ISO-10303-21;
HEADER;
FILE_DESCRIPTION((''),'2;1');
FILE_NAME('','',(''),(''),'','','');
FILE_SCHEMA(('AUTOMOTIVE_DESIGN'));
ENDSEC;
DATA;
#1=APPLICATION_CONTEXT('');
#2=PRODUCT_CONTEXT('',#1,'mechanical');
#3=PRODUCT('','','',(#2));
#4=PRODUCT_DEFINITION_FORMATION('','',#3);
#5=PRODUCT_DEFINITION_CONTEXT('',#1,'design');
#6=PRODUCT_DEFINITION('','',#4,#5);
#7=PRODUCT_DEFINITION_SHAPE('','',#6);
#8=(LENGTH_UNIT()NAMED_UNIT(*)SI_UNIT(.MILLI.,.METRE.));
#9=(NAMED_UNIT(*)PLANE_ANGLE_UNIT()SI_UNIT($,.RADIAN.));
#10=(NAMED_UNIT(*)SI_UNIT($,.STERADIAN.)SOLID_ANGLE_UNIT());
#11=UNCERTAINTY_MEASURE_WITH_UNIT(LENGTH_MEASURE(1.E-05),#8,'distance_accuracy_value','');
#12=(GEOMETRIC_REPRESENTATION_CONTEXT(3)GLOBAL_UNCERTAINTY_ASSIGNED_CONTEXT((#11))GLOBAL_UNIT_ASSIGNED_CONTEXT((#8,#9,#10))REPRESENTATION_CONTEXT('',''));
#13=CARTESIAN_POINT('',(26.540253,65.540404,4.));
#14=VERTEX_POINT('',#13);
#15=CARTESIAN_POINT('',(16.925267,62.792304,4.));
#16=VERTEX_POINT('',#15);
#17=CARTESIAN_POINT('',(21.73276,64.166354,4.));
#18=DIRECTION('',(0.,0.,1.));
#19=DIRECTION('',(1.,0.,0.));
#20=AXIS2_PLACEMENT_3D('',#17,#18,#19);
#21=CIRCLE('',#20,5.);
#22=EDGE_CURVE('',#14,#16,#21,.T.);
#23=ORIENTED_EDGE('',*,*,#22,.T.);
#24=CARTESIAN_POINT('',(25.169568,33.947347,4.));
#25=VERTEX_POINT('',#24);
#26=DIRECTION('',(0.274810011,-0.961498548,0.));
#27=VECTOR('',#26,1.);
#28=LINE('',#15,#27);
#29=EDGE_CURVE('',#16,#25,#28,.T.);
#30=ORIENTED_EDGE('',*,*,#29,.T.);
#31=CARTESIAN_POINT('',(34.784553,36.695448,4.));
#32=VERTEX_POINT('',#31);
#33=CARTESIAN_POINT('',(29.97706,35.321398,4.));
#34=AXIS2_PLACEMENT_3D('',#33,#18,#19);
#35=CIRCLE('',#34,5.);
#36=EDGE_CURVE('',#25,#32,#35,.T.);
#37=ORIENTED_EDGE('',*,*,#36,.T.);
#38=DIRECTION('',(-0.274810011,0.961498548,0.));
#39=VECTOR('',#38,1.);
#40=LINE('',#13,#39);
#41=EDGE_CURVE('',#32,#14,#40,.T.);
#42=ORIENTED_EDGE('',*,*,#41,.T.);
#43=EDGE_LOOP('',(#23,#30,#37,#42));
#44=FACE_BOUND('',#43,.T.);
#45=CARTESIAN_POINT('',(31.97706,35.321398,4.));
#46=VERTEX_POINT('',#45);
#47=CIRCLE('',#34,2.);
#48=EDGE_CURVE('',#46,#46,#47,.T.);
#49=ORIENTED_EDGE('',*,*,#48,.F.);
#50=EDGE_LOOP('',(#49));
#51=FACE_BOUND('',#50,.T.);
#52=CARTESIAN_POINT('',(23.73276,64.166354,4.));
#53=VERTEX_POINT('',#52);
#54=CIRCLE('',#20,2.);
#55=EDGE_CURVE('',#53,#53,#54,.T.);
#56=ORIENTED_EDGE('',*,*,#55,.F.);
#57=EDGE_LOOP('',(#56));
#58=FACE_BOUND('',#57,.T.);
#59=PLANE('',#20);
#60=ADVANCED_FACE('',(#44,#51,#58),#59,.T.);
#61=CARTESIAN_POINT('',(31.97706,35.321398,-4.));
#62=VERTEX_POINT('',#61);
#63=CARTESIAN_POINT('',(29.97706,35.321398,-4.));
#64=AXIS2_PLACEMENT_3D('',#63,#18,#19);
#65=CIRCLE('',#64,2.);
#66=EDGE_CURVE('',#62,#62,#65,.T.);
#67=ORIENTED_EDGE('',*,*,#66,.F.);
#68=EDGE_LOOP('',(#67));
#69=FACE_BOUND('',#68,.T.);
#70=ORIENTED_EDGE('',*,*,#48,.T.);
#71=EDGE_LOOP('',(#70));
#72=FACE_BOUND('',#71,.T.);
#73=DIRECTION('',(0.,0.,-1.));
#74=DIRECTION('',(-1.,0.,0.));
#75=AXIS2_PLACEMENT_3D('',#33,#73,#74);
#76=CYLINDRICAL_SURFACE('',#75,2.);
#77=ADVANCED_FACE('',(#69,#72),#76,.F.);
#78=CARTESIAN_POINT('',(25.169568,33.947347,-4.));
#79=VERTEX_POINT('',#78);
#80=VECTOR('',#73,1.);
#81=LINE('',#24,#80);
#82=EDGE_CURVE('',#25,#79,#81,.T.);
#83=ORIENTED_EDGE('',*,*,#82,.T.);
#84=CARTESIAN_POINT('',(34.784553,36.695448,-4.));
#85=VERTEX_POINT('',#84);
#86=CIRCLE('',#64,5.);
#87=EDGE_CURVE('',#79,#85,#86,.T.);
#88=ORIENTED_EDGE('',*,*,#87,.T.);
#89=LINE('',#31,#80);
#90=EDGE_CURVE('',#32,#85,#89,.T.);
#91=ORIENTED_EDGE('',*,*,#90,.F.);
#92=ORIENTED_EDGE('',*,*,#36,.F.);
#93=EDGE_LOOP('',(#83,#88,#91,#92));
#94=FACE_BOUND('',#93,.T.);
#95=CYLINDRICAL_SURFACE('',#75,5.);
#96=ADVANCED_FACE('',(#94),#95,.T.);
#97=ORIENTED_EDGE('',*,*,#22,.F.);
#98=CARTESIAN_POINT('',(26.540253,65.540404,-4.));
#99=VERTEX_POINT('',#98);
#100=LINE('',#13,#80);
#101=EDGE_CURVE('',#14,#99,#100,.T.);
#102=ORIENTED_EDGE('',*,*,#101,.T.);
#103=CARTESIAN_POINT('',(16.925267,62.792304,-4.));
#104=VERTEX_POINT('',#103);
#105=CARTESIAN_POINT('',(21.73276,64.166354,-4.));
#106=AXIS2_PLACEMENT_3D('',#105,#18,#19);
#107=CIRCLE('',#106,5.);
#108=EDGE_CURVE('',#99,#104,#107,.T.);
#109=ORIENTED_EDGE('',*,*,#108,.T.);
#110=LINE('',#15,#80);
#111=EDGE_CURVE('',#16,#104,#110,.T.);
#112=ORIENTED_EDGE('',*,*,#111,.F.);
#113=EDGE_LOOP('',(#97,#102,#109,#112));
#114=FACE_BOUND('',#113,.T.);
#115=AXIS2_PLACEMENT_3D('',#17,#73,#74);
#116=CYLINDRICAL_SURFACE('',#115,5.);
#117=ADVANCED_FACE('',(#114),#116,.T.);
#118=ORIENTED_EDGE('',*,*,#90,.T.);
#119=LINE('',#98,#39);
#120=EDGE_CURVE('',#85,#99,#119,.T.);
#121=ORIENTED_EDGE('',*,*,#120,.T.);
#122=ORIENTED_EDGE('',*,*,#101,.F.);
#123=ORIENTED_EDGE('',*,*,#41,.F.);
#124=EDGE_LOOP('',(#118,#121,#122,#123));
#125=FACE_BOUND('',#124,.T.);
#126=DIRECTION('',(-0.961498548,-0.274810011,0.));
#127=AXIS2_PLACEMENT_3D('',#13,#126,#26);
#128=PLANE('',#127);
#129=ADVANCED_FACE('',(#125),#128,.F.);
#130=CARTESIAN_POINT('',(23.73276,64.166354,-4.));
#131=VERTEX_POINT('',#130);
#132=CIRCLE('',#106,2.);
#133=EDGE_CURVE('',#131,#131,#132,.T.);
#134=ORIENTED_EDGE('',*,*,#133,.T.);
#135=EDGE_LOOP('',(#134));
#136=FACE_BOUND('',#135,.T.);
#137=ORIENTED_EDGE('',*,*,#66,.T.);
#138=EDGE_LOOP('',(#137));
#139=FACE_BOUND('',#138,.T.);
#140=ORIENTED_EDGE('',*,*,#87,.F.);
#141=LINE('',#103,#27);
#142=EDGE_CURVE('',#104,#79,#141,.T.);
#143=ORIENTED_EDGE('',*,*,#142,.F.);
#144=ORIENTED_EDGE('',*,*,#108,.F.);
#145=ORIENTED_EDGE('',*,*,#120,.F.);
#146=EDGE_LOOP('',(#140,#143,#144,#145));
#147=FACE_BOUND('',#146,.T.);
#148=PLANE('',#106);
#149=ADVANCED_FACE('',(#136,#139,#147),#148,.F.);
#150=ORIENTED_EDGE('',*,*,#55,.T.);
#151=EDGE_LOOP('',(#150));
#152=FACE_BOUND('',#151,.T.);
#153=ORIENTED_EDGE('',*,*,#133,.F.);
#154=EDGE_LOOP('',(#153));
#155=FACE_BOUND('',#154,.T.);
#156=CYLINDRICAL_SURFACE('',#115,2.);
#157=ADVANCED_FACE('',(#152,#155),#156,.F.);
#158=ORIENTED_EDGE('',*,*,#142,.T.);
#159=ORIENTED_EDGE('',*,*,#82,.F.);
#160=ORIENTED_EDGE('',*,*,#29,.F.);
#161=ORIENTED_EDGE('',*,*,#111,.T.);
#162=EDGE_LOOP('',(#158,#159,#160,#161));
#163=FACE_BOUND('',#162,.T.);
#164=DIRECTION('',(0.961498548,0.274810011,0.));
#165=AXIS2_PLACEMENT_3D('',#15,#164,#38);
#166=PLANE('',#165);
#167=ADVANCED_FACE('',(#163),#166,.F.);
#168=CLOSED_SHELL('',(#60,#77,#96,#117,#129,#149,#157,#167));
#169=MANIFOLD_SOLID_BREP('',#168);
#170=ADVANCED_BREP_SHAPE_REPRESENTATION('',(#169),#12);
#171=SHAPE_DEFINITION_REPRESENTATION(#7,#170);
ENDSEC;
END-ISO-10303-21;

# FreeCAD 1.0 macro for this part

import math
import FreeCAD as App
import Part
import Sketcher

doc = App.newDocument("Part")
body = doc.addObject("PartDesign::Body", "Body")

sketch1 = body.newObject("Sketcher::SketchObject", "Sketch")
sketch1.AttachmentSupport = (doc.getObject("XY_Plane"), [""])
sketch1.MapMode = "FlatFace"
sketch1.addGeometry([
    Part.LineSegment(App.Vector(34.8, 36.7, 0), App.Vector(26.5, 65.5, 0)),
    Part.ArcOfCircle(Part.Circle(App.Vector(21.7, 64.2, 0), App.Vector(0, 0, 1), 5), math.radians(16), math.radians(196)),
    Part.LineSegment(App.Vector(16.9, 62.8, 0), App.Vector(25.2, 33.9, 0)),
    Part.ArcOfCircle(Part.Circle(App.Vector(30, 35.3, 0), App.Vector(0, 0, 1), 5), math.radians(-164), math.radians(16)),
    Part.Circle(App.Vector(30, 35.3, 0), App.Vector(0, 0, 1), 2),
    Part.Circle(App.Vector(21.7, 64.2, 0), App.Vector(0, 0, 1), 2),
], False)
sketch1.addConstraint([
    Sketcher.Constraint("Tangent", 0, 2, 1, 1),
    Sketcher.Constraint("Tangent", 1, 2, 2, 1),
    Sketcher.Constraint("Tangent", 2, 2, 3, 1),
    Sketcher.Constraint("Tangent", 3, 2, 0, 1),
    Sketcher.Constraint("Coincident", 4, 3, 3, 3),
    Sketcher.Constraint("Coincident", 5, 3, 1, 3),
    Sketcher.Constraint("Equal", 1, 3),
    Sketcher.Constraint("Equal", 4, 5),
    Sketcher.Constraint("Diameter", 4, 4.0),
    Sketcher.Constraint("Radius", 1, 5.0),
    Sketcher.Constraint("Distance", 0, 30.0),
    Sketcher.Constraint("DistanceX", 1, 3, 3, 3, 8.2443),
    Sketcher.Constraint("DistanceX", -1, 1, 1, 3, 21.73276),
    Sketcher.Constraint("DistanceY", -1, 1, 1, 3, 64.166354),
])
pad1 = body.newObject("PartDesign::Pad", "Pad")
pad1.Profile = sketch1
pad1.Length = 8
pad1.Midplane = True

doc.recompute()
